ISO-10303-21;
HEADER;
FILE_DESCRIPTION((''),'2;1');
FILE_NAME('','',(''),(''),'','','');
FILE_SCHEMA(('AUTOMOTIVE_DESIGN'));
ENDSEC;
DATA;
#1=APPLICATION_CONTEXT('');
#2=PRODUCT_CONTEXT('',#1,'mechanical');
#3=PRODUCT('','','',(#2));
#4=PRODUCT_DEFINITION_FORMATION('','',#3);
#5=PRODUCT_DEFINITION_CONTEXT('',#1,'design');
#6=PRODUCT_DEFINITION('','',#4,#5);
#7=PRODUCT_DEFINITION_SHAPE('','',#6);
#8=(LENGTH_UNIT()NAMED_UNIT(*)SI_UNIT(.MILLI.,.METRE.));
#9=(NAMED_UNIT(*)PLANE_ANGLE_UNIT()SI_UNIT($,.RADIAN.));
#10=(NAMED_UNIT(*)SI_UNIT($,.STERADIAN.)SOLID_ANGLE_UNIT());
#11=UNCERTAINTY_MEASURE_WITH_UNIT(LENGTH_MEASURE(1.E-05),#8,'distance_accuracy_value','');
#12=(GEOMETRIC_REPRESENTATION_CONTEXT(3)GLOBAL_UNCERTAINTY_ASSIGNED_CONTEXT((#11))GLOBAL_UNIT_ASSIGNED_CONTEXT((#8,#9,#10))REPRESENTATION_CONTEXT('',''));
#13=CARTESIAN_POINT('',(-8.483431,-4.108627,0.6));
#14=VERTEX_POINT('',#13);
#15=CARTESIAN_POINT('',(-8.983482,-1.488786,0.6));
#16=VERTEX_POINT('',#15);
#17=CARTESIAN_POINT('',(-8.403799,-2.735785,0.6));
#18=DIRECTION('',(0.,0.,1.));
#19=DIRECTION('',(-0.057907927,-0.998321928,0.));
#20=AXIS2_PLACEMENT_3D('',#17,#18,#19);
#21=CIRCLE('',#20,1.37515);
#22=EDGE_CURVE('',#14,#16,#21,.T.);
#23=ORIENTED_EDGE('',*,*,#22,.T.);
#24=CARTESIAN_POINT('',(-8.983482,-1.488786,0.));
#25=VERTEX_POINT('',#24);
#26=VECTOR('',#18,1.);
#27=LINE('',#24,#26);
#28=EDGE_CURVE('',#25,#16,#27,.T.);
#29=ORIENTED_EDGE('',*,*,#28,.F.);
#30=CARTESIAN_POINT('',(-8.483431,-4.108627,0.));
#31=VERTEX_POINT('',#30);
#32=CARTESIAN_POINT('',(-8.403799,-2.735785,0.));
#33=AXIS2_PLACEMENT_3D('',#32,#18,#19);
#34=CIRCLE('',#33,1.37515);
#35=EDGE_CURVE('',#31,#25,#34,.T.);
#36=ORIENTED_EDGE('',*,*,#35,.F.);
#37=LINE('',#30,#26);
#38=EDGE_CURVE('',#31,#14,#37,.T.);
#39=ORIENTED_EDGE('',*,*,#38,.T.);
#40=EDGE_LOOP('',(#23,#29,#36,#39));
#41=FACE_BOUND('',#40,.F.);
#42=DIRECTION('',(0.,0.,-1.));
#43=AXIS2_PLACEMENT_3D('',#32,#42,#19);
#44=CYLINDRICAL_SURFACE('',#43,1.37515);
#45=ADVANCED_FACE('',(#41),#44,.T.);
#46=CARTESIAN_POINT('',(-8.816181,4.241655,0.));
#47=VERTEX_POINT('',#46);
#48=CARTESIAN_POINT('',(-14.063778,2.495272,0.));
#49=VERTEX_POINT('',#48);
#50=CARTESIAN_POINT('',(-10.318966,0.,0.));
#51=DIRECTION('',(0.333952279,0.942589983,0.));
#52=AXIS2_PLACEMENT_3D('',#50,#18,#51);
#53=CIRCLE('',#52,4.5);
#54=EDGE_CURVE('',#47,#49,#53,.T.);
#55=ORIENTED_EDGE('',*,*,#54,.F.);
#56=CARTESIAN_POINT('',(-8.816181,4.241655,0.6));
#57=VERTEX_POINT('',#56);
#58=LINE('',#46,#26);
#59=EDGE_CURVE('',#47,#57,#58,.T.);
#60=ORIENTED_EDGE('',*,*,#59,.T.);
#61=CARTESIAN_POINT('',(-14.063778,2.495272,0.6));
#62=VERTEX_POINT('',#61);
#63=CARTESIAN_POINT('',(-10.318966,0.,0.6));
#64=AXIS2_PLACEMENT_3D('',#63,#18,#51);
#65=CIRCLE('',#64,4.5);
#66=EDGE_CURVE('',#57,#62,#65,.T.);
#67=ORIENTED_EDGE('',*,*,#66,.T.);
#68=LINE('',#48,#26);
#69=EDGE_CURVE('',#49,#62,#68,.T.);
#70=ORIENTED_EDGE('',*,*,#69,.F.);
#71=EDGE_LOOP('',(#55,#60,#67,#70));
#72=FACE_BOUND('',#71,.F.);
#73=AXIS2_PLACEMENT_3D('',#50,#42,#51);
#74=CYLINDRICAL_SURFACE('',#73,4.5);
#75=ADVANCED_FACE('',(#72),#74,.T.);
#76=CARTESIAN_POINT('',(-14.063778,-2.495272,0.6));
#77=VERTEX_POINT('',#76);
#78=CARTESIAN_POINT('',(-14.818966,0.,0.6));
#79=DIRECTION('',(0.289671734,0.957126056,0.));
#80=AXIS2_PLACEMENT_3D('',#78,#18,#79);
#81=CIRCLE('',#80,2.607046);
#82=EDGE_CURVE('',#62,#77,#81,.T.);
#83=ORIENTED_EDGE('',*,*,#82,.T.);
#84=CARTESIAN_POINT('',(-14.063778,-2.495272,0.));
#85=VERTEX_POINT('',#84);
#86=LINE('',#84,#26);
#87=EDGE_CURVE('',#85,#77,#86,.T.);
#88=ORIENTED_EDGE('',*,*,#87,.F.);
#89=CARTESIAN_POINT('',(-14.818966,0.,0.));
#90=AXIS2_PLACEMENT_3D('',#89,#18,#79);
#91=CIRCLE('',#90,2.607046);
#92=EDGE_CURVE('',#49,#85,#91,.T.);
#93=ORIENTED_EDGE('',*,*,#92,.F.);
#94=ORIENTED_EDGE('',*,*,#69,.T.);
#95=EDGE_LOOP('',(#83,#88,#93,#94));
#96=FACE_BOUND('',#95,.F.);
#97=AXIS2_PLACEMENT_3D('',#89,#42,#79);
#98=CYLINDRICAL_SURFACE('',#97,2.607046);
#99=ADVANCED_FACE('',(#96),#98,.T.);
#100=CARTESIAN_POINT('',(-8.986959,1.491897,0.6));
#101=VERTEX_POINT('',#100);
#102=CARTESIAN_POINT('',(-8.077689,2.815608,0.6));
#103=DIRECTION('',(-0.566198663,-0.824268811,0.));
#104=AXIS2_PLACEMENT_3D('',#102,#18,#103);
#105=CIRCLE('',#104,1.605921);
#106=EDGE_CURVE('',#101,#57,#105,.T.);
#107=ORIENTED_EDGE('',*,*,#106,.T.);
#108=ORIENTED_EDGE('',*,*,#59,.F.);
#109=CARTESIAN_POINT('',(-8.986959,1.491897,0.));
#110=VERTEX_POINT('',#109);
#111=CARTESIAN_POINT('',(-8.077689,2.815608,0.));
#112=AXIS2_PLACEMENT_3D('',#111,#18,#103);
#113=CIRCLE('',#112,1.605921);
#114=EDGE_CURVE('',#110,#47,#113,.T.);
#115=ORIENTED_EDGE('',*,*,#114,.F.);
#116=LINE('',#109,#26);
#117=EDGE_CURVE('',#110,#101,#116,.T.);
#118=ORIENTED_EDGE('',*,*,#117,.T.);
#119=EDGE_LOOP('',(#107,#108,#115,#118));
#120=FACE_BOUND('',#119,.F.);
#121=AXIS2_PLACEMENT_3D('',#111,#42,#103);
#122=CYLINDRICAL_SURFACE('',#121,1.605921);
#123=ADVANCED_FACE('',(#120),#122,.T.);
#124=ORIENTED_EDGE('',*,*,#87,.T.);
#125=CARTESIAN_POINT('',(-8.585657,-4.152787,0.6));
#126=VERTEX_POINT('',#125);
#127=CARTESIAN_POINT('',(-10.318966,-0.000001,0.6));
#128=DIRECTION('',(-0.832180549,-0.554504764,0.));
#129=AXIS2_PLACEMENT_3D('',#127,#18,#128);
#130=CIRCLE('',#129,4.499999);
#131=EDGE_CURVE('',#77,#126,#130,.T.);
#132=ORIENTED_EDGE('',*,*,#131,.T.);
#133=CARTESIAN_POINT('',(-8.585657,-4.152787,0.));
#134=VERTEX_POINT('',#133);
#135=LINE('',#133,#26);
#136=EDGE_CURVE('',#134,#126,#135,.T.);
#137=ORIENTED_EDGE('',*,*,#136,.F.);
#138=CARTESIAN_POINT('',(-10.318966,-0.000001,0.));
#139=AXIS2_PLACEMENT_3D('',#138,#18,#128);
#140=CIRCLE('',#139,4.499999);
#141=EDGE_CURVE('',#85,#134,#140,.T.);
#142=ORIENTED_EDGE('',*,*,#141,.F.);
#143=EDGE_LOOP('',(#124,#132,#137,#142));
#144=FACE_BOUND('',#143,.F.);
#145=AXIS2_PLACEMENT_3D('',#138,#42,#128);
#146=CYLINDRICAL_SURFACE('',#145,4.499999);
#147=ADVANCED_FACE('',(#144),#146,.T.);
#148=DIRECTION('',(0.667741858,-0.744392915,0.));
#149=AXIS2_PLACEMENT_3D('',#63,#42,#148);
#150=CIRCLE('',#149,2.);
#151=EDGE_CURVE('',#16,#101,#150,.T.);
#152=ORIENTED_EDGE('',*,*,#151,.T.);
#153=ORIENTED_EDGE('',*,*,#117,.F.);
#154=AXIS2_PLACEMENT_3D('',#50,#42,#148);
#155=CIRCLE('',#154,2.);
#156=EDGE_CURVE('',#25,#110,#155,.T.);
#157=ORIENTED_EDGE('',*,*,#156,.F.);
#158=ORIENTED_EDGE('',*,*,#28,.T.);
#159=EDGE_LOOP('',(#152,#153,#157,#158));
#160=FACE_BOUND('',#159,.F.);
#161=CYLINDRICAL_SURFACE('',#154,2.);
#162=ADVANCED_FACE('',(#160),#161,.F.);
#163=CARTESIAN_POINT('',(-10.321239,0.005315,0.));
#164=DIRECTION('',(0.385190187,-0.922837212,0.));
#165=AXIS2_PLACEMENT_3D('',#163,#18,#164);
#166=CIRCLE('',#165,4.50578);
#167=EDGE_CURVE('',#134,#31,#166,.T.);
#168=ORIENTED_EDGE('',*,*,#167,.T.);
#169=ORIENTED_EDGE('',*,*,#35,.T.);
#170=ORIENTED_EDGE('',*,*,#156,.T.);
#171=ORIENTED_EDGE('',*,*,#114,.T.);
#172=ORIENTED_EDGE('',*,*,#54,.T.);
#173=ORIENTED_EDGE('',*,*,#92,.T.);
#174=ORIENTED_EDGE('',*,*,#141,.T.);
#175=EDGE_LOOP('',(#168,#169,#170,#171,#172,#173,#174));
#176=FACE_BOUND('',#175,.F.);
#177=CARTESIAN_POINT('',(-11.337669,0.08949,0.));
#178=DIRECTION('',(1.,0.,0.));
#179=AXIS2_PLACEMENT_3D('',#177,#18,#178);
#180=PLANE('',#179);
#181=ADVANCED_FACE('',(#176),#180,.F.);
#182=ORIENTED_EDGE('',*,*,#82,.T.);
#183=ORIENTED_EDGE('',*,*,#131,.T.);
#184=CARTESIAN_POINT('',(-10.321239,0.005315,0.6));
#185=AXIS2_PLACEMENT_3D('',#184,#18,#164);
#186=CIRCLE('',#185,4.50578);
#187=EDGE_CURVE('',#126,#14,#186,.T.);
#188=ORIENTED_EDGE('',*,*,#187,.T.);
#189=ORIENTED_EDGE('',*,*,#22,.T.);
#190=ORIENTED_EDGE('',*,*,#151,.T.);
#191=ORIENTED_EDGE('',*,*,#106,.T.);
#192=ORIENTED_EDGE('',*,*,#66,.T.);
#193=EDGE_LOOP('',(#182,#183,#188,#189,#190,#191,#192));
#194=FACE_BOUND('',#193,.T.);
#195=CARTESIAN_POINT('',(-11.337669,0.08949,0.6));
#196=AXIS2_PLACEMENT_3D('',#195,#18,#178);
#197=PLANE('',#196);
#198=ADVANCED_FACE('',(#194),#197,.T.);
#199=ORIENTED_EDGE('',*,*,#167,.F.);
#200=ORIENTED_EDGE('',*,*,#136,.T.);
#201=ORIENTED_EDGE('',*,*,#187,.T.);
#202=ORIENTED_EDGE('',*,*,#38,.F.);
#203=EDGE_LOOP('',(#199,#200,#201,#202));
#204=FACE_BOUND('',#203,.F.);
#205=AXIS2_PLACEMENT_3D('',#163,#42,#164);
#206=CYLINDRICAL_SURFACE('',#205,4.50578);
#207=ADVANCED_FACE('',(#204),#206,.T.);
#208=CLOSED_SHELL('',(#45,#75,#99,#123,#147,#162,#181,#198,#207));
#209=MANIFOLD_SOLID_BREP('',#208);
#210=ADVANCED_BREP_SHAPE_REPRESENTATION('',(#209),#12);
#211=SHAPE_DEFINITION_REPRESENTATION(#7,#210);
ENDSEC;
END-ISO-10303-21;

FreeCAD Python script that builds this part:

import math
import FreeCAD as App
import Part
import Sketcher

V = App.Vector
Q = App.Units.Quantity

doc = App.newDocument("Part")
body = doc.addObject("PartDesign::Body", "Body")

# Sketch on XY plane
sketch1 = doc.addObject("Sketcher::SketchObject", "Sketch")
body.addObject(sketch1)
sketch1.AttachmentSupport = (doc.XY_Plane, [""])
sketch1.MapMode = "FlatFace"
sketch1.addGeometry([
    Part.ArcOfCircle(Part.Circle(V(-14.82, 0, 0), V(0, 0, 1), 2.61), math.radians(73), math.radians(287)),  # 0
    Part.ArcOfCircle(Part.Circle(V(-10.32, 0, 0), V(0, 0, 1), 4.5), math.radians(-146), math.radians(-67)),  # 1
    Part.ArcOfCircle(Part.Circle(V(-10.32, 0.01, 0), V(0, 0, 1), 4.51), math.radians(-67.34), math.radians(-65.93)),  # 2
    Part.ArcOfCircle(Part.Circle(V(-8.4, -2.74, 0), V(0, 0, 1), 1.38), math.radians(-93), math.radians(115)),  # 3
    Part.ArcOfCircle(Part.Circle(V(-10.32, 0, 0), V(0, 0, 1), 2), math.radians(48), math.radians(312)),  # 4
    Part.ArcOfCircle(Part.Circle(V(-8.08, 2.82, 0), V(0, 0, 1), 1.61), math.radians(-124), math.radians(117)),  # 5
    Part.ArcOfCircle(Part.Circle(V(-10.32, 0, 0), V(0, 0, 1), 4.5), math.radians(70), math.radians(146)),  # 6
], False)
sketch1.addConstraint([
    Sketcher.Constraint("Coincident", 0, 2, 1, 1),
    Sketcher.Constraint("Coincident", 1, 2, 2, 1),
    Sketcher.Constraint("Coincident", 2, 2, 3, 1),
    Sketcher.Constraint("Coincident", 3, 2, 4, 2),
    Sketcher.Constraint("Coincident", 4, 1, 5, 1),
    Sketcher.Constraint("Coincident", 5, 2, 6, 1),
    Sketcher.Constraint("Coincident", 6, 2, 0, 1),
    Sketcher.Constraint("Coincident", 4, 3, 1, 3),
    Sketcher.Constraint("Coincident", 6, 3, 1, 3),
    Sketcher.Constraint("Equal", 1, 6),
    Sketcher.Constraint("Symmetric", 0, 2, 6, 2, -1),
    Sketcher.Constraint("Radius", 4, Q("2 mm")),
    Sketcher.Constraint("Radius", 1, Q("4.499999 mm")),
    Sketcher.Constraint("DistanceX", 0, 3, 1, 3, Q("4.499999 mm")),
    Sketcher.Constraint("Radius", 2, Q("4.50578 mm")),
    Sketcher.Constraint("Radius", 3, Q("1.37515 mm")),
    Sketcher.Constraint("Radius", 5, Q("1.605921 mm")),
    Sketcher.Constraint("Radius", 0, Q("2.607046 mm")),
    Sketcher.Constraint("DistanceY", 3, 3, 3, 2, Q("1.246999 mm")),
    Sketcher.Constraint("DistanceX", 3, 3, -1, 1, Q("8.403799 mm")),
    Sketcher.Constraint("DistanceY", 3, 3, 2, 3, Q("2.741099 mm")),
    Sketcher.Constraint("DistanceY", 1, 2, 2, 3, Q("4.158102 mm")),
    Sketcher.Constraint("DistanceY", 1, 3, 4, 1, Q("1.491898 mm")),
    Sketcher.Constraint("DistanceX", 2, 3, -1, 1, Q("10.321239 mm")),
    Sketcher.Constraint("DistanceX", 5, 3, -1, 1, Q("8.077689 mm")),
])
pad1 = doc.addObject("PartDesign::Pad", "Pad")
body.addObject(pad1)
pad1.Profile = sketch1
pad1.Length = 0.6

doc.recompute()
